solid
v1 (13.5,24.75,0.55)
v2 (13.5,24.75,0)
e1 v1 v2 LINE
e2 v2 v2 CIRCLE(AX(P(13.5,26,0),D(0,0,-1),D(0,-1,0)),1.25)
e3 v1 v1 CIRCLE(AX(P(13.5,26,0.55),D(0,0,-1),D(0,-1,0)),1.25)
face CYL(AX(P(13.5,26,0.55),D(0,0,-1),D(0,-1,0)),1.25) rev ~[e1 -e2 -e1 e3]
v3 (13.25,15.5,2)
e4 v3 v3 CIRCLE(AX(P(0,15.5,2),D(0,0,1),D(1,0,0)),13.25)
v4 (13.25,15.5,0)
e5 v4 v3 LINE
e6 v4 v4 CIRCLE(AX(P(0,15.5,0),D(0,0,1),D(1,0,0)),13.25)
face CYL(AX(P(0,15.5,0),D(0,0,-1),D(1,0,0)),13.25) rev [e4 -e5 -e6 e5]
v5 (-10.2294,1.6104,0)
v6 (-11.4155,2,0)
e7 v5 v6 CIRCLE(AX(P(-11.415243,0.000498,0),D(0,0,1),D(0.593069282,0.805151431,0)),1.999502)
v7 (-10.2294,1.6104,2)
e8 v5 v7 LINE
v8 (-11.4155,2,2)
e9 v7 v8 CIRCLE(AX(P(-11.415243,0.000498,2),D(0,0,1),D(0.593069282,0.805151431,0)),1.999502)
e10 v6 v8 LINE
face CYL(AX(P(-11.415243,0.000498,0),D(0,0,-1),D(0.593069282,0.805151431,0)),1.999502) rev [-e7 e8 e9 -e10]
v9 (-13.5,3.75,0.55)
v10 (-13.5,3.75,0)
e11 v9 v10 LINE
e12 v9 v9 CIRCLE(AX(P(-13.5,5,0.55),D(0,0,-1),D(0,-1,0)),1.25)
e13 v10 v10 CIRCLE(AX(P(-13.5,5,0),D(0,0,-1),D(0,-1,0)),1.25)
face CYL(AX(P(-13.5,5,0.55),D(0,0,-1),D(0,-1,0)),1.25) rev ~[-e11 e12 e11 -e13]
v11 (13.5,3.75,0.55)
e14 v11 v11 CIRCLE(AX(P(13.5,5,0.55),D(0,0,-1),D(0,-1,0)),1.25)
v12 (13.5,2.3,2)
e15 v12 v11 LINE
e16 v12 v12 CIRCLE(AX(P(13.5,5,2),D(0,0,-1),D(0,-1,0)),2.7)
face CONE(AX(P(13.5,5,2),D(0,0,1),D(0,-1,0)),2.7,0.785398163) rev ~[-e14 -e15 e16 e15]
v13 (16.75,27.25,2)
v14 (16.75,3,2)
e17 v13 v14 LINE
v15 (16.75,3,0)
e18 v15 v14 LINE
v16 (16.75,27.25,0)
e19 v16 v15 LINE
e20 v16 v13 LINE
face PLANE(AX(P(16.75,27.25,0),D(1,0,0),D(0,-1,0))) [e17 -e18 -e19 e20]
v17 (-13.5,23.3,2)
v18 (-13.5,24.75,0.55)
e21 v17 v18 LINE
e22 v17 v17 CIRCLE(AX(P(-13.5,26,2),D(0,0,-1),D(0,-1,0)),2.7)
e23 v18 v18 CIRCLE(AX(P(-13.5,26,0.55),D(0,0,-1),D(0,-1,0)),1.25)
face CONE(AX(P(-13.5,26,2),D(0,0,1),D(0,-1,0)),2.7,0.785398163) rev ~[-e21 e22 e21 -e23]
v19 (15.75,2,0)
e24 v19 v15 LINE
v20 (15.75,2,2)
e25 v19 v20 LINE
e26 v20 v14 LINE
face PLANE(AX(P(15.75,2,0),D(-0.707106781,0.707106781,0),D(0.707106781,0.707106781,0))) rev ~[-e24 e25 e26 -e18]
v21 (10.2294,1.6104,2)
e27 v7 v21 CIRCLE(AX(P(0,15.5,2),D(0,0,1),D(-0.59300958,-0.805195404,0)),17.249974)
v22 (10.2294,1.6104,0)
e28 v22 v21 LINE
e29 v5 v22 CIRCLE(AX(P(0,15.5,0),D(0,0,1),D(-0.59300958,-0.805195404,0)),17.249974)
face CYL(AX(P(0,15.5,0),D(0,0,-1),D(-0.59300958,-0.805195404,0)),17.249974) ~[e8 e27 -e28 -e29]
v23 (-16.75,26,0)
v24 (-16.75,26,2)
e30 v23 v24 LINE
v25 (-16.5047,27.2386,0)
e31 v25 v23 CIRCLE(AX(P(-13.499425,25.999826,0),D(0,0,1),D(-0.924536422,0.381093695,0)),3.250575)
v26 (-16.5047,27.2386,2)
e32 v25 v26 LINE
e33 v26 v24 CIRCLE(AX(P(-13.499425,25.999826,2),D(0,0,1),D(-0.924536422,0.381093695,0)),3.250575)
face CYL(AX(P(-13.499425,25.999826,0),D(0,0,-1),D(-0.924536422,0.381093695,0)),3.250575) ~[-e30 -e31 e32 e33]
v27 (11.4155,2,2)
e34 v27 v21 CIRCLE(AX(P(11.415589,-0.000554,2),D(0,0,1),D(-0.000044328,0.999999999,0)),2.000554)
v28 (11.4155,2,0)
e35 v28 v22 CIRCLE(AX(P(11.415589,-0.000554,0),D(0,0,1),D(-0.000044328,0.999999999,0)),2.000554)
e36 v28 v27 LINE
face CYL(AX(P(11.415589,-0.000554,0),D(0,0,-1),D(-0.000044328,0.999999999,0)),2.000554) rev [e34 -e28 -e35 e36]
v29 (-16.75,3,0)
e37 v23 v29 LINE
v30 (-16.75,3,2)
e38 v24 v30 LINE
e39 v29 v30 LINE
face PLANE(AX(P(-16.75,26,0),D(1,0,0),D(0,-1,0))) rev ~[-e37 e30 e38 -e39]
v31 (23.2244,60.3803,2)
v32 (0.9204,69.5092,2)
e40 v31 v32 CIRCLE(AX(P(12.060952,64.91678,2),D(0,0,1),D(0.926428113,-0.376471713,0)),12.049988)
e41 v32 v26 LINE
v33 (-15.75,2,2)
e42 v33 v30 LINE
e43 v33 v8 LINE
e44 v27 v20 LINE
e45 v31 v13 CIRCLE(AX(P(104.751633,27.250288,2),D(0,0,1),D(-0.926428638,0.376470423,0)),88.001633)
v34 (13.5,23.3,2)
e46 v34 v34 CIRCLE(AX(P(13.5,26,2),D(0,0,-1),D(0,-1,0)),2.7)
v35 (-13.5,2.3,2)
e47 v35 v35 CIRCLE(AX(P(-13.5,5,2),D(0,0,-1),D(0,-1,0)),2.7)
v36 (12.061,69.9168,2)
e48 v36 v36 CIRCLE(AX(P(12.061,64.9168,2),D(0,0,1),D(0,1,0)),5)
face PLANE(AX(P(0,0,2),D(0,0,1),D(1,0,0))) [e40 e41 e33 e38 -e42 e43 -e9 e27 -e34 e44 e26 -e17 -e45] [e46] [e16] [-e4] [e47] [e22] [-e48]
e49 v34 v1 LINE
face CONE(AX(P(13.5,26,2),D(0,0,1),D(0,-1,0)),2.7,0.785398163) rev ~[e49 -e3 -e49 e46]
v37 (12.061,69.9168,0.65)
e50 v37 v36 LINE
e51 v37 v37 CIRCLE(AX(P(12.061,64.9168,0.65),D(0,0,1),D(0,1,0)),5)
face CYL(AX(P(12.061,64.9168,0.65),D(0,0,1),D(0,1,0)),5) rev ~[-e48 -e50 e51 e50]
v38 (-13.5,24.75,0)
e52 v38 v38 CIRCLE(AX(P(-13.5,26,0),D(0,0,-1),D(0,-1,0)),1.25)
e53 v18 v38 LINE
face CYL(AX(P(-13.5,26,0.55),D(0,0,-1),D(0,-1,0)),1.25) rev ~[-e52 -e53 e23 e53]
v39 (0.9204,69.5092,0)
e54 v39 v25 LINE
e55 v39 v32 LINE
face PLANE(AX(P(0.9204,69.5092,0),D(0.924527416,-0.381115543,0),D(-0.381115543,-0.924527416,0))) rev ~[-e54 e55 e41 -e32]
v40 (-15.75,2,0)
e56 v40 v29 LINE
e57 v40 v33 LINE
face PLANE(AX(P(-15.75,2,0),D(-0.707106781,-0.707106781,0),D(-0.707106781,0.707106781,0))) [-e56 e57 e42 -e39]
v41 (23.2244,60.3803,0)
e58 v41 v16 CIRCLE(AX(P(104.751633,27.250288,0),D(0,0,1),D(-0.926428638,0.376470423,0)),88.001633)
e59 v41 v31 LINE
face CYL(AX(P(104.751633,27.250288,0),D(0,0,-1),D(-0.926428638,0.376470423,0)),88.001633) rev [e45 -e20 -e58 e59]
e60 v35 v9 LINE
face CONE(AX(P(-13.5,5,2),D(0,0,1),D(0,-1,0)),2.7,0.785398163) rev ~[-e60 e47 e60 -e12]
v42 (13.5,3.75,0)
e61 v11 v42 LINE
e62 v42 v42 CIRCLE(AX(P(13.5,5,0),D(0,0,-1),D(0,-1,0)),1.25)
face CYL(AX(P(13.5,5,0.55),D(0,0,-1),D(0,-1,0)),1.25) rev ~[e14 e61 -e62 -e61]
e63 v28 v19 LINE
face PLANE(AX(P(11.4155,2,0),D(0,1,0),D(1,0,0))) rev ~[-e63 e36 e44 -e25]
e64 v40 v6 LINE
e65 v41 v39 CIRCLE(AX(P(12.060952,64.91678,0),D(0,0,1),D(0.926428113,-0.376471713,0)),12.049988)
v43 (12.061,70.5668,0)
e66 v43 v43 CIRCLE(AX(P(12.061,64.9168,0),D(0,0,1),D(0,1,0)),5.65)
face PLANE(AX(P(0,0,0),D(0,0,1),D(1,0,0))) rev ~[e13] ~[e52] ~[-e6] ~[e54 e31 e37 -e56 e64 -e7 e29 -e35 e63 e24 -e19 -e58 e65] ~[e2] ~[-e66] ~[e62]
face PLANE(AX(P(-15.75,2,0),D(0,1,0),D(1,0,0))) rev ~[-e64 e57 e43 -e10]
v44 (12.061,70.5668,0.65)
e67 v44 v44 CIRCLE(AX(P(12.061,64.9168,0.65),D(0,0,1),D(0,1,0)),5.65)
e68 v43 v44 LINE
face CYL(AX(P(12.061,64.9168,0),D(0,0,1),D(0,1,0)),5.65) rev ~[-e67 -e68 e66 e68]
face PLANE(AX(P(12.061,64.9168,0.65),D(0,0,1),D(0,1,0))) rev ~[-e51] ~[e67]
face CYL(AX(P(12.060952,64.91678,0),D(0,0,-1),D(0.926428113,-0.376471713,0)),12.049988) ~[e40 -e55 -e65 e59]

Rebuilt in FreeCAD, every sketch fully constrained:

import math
import FreeCAD as App
import Part
import Sketcher

doc = App.newDocument("Part")
body = doc.addObject("PartDesign::Body", "Body")

sketch1 = doc.addObject("Sketcher::SketchObject", "Sketch")
body.addObject(sketch1)
sketch1.AttachmentSupport = (doc.XY_Plane, [""])
sketch1.MapMode = "FlatFace"
sketch1.addGeometry([
    Part.ArcOfCircle(Part.Circle(App.Vector(104.751633, 27.250288, 0), App.Vector(0, 0, 1), 88.001633), math.radians(157.884777), math.radians(180.000188)),
    Part.ArcOfCircle(Part.Circle(App.Vector(12.061, 64.9168, 0), App.Vector(0, 0, 1), 12.049952), math.radians(-22.115478), math.radians(157.597468)),
    Part.LineSegment(App.Vector(0.9204, 69.5092, 0), App.Vector(-16.5047, 27.2386, 0)),
    Part.ArcOfCircle(Part.Circle(App.Vector(-13.5, 26, 0), App.Vector(0, 0, 1), 3.249977), math.radians(157.597522), math.radians(180)),
    Part.LineSegment(App.Vector(-16.75, 26, 0), App.Vector(-16.75, 3, 0)),
    Part.LineSegment(App.Vector(-16.75, 3, 0), App.Vector(-15.75, 2, 0)),
    Part.LineSegment(App.Vector(-15.75, 2, 0), App.Vector(-11.4155, 2, 0)),
    Part.ArcOfCircle(Part.Circle(App.Vector(-11.4155, 0, 0), App.Vector(0, 0, 1), 2.000055), math.radians(53.627422), math.radians(90)),
    Part.ArcOfCircle(Part.Circle(App.Vector(0, 15.5, 0), App.Vector(0, 0, 1), 17.249974), math.radians(-126.370869), math.radians(-53.629131)),
    Part.ArcOfCircle(Part.Circle(App.Vector(11.4155, 0, 0), App.Vector(0, 0, 1), 2), math.radians(90), math.radians(126.372578)),
    Part.LineSegment(App.Vector(11.4155, 2, 0), App.Vector(15.75, 2, 0)),
    Part.LineSegment(App.Vector(15.75, 2, 0), App.Vector(16.75, 3, 0)),
    Part.LineSegment(App.Vector(16.75, 3, 0), App.Vector(16.75, 27.25, 0)),
    Part.Circle(App.Vector(0, 15.5, 0), App.Vector(0, 0, 1), 13.25),
], False)
sketch1.addConstraint([
    Sketcher.Constraint("Tangent", 0, 1, 1, 1),
    Sketcher.Constraint("Tangent", 1, 2, 2, 1),
    Sketcher.Constraint("Tangent", 2, 2, 3, 1),
    Sketcher.Constraint("Tangent", 3, 2, 4, 1),
    Sketcher.Constraint("Coincident", 4, 2, 5, 1),
    Sketcher.Constraint("Coincident", 5, 2, 6, 1),
    Sketcher.Constraint("Tangent", 6, 2, 7, 2),
    Sketcher.Constraint("Tangent", 7, 1, 8, 1),
    Sketcher.Constraint("Tangent", 8, 2, 9, 2),
    Sketcher.Constraint("Tangent", 9, 1, 10, 1),
    Sketcher.Constraint("Coincident", 10, 2, 11, 1),
    Sketcher.Constraint("Coincident", 11, 2, 12, 1),
    Sketcher.Constraint("Tangent", 12, 2, 0, 2),
    Sketcher.Constraint("Vertical", 4),
    Sketcher.Constraint("Horizontal", 6),
    Sketcher.Constraint("Horizontal", 10),
    Sketcher.Constraint("Vertical", 12),
    Sketcher.Constraint("Coincident", 13, 3, 8, 3),
    Sketcher.Constraint("Equal", 7, 9),
    Sketcher.Constraint("Symmetric", 7, 3, 9, 3, -1, 1),
    Sketcher.Constraint("Symmetric", 5, 2, 10, 2, -2),
    Sketcher.Constraint("Symmetric", 4, 2, 11, 2, -2),
    Sketcher.Constraint("Perpendicular", 5, 11),
    Sketcher.Constraint("Radius", 7, 2.0),
    Sketcher.Constraint("Diameter", 13, 26.5),
    Sketcher.Constraint("Radius", 1, 12.05),
    Sketcher.Constraint("DistanceY", -1, 1, 4, 2, 3.0),
    Sketcher.Constraint("DistanceY", 4, 2, 4, 1, 23.0),
    Sketcher.Constraint("Radius", 3, 3.25),
    Sketcher.Constraint("Radius", 8, 17.25),
    Sketcher.Constraint("DistanceY", 12, 1, 12, 2, 24.25),
    Sketcher.Constraint("DistanceX", 3, 3, -1, 1, 13.5),
    Sketcher.Constraint("DistanceY", -1, 1, 8, 3, 15.5),
    Sketcher.Constraint("Radius", 0, 88.0016),
    Sketcher.Constraint("DistanceX", -1, 1, 1, 3, 12.061),
])
pad1 = doc.addObject("PartDesign::Pad", "Pad")
body.addObject(pad1)
pad1.Profile = sketch1
pad1.Length = 2

sketch2 = doc.addObject("Sketcher::SketchObject", "Sketch001")
body.addObject(sketch2)
sketch2.AttachmentSupport = (doc.XY_Plane, [""])
sketch2.MapMode = "FlatFace"
sketch2.addGeometry(Part.Circle(App.Vector(12.061, 64.9168, 0), App.Vector(0, 0, 1), 5), False)
sketch2.addConstraint([
    Sketcher.Constraint("Diameter", 0, 10.0),
    Sketcher.Constraint("DistanceX", -1, 1, 0, 3, 12.061),
    Sketcher.Constraint("DistanceY", -1, 1, 0, 3, 64.9168),
])
doc.recompute()
hole = doc.addObject("PartDesign::Hole", "Hole")
body.addObject(hole)
hole.Profile = sketch2
hole.ThreadType = "None"
hole.Diameter = 10
hole.DepthType = "ThroughAll"
hole.HoleCutType = "Counterbore"
hole.HoleCutDiameter = 11.3
hole.HoleCutDepth = 0.65
hole.Reversed = True

sketch3 = doc.addObject("Sketcher::SketchObject", "Sketch002")
body.addObject(sketch3)
sketch3.AttachmentSupport = (doc.XY_Plane, [""])
sketch3.MapMode = "FlatFace"
sketch3.AttachmentOffset = App.Placement(App.Vector(0, 0, 2), App.Rotation())
sketch3.addGeometry([
    Part.Circle(App.Vector(-13.5, 5, 0), App.Vector(0, 0, 1), 1.25),
    Part.Circle(App.Vector(-13.5, 26, 0), App.Vector(0, 0, 1), 1.25),
    Part.Circle(App.Vector(13.5, 26, 0), App.Vector(0, 0, 1), 1.25),
    Part.Circle(App.Vector(13.5, 5, 0), App.Vector(0, 0, 1), 1.25),
], False)
sketch3.addConstraint([
    Sketcher.Constraint("Equal", 0, 1),
    Sketcher.Constraint("Equal", 1, 2),
    Sketcher.Constraint("Equal", 2, 3),
    Sketcher.Constraint("Symmetric", 1, 3, 2, 3, -2),
    Sketcher.Constraint("Symmetric", 0, 3, 3, 3, -2),
    Sketcher.Constraint("Vertical", 0, 3, 1, 3),
    Sketcher.Constraint("Diameter", 0, 2.5),
    Sketcher.Constraint("DistanceY", -1, 1, 0, 3, 5.0),
    Sketcher.Constraint("DistanceY", -1, 1, 1, 3, 26.0),
    Sketcher.Constraint("DistanceX", 1, 3, 2, 3, 27.0),
])
doc.recompute()
hole2 = doc.addObject("PartDesign::Hole", "Hole001")
body.addObject(hole2)
hole2.Profile = sketch3
hole2.ThreadType = "None"
hole2.Diameter = 2.5
hole2.DepthType = "ThroughAll"
hole2.HoleCutType = "Countersink"
hole2.HoleCutDiameter = 5.4
hole2.HoleCutCountersinkAngle = 90

doc.recompute()
